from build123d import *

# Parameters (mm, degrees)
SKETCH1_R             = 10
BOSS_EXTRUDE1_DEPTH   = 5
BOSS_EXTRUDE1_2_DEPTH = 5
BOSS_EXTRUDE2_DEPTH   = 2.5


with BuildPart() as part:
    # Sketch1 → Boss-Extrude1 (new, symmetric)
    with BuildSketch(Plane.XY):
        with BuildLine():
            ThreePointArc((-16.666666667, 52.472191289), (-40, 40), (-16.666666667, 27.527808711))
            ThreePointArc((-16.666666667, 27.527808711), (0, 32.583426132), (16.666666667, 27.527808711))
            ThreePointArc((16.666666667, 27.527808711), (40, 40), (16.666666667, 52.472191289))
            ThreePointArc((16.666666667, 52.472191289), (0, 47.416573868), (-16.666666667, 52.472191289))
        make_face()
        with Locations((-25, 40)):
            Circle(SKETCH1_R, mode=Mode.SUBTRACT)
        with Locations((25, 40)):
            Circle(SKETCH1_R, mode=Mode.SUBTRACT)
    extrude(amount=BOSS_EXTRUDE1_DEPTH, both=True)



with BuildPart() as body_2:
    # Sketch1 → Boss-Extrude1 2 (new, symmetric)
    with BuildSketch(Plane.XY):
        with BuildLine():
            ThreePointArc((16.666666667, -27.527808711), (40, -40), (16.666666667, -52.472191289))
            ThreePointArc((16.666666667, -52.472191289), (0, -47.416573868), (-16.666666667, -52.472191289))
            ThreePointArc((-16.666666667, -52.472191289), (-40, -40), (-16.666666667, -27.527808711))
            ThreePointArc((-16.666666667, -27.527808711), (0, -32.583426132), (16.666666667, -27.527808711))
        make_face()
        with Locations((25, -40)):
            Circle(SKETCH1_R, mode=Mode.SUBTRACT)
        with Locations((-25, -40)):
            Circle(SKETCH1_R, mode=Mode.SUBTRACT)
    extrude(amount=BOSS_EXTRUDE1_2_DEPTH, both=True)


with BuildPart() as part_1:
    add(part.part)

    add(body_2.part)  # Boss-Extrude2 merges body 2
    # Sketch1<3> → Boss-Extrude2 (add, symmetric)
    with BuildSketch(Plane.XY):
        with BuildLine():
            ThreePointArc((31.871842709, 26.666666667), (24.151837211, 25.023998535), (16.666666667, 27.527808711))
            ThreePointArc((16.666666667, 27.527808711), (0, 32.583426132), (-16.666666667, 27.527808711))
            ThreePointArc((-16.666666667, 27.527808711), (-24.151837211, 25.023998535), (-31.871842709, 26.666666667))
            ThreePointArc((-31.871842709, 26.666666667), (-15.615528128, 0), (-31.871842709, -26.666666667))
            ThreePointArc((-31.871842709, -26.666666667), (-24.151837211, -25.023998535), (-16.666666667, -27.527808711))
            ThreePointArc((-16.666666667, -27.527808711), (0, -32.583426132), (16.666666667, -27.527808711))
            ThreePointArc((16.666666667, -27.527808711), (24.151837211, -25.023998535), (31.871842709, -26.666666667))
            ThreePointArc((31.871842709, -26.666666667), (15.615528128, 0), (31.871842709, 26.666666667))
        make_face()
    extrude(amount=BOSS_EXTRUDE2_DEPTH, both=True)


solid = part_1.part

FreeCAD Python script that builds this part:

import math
import FreeCAD as App
import Part
import Sketcher
from FreeCAD import Vector

doc = App.newDocument("Part")
body = doc.addObject("PartDesign::Body", "Body")

# Sketch on XY plane
sketch1 = body.newObject("Sketcher::SketchObject", "Sketch")
sketch1.AttachmentSupport = (doc.getObject("XY_Plane"), [""])
sketch1.MapMode = "FlatFace"
sketch1.addGeometry(Part.ArcOfCircle(Part.Circle(Vector(-25, 40, 0), Vector(0, 0, 1), 15), math.radians(56), math.radians(304)), False)
sketch1.addGeometry(Part.ArcOfCircle(Part.Circle(Vector(0, 3, 0), Vector(0, 0, 1), 30), math.radians(56), math.radians(124)), False)
sketch1.addGeometry(Part.ArcOfCircle(Part.Circle(Vector(25, 40, 0), Vector(0, 0, 1), 15), math.radians(-124), math.radians(124)), False)
sketch1.addGeometry(Part.ArcOfCircle(Part.Circle(Vector(0, 77, 0), Vector(0, 0, 1), 30), math.radians(-124), math.radians(-56)), False)
sketch1.addGeometry(Part.Circle(Vector(-25, 40, 0), Vector(0, 0, 1), 10), False)
sketch1.addGeometry(Part.Circle(Vector(25, 40, 0), Vector(0, 0, 1), 10), False)
sketch1.addConstraint(Sketcher.Constraint("Tangent", 0, 2, 1, 2))
sketch1.addConstraint(Sketcher.Constraint("Tangent", 1, 1, 2, 1))
sketch1.addConstraint(Sketcher.Constraint("Tangent", 2, 2, 3, 2))
sketch1.addConstraint(Sketcher.Constraint("Tangent", 3, 1, 0, 1))
sketch1.addConstraint(Sketcher.Constraint("Coincident", 4, 3, 0, 3))
sketch1.addConstraint(Sketcher.Constraint("Coincident", 5, 3, 2, 3))
sketch1.addConstraint(Sketcher.Constraint("Equal", 0, 2))
sketch1.addConstraint(Sketcher.Constraint("Equal", 1, 3))
sketch1.addConstraint(Sketcher.Constraint("Equal", 4, 5))
sketch1.addConstraint(Sketcher.Constraint("Symmetric", 0, 3, 2, 3, -2))
sketch1.addConstraint(Sketcher.Constraint("Diameter", 4, 20.0))
sketch1.addConstraint(Sketcher.Constraint("Radius", 0, 15.0))
sketch1.addConstraint(Sketcher.Constraint("Radius", 1, 30.0))
sketch1.addConstraint(Sketcher.Constraint("DistanceX", 0, 3, -1, 1, 25.0))
sketch1.addConstraint(Sketcher.Constraint("DistanceY", -1, 1, 0, 3, 40.0))
pad1 = body.newObject("PartDesign::Pad", "Pad")
pad1.Profile = sketch1
pad1.Length = 10
pad1.Midplane = True
body2 = doc.addObject("PartDesign::Body", "Body001")

# Sketch on XY plane
sketch2 = body2.newObject("Sketcher::SketchObject", "Sketch001")
sketch2.AttachmentSupport = (doc.getObject("XY_Plane001"), [""])
sketch2.MapMode = "FlatFace"
sketch2.addGeometry(Part.ArcOfCircle(Part.Circle(Vector(25, -40, 0), Vector(0, 0, 1), 15), math.radians(-124), math.radians(124)), False)
sketch2.addGeometry(Part.ArcOfCircle(Part.Circle(Vector(0, -3, 0), Vector(0, 0, 1), 30), math.radians(-124), math.radians(-56)), False)
sketch2.addGeometry(Part.ArcOfCircle(Part.Circle(Vector(-25, -40, 0), Vector(0, 0, 1), 15), math.radians(56), math.radians(304)), False)
sketch2.addGeometry(Part.ArcOfCircle(Part.Circle(Vector(0, -77, 0), Vector(0, 0, 1), 30), math.radians(56), math.radians(124)), False)
sketch2.addGeometry(Part.Circle(Vector(25, -40, 0), Vector(0, 0, 1), 10), False)
sketch2.addGeometry(Part.Circle(Vector(-25, -40, 0), Vector(0, 0, 1), 10), False)
sketch2.addConstraint(Sketcher.Constraint("Tangent", 0, 2, 1, 2))
sketch2.addConstraint(Sketcher.Constraint("Tangent", 1, 1, 2, 1))
sketch2.addConstraint(Sketcher.Constraint("Tangent", 2, 2, 3, 2))
sketch2.addConstraint(Sketcher.Constraint("Tangent", 3, 1, 0, 1))
sketch2.addConstraint(Sketcher.Constraint("Coincident", 4, 3, 0, 3))
sketch2.addConstraint(Sketcher.Constraint("Coincident", 5, 3, 2, 3))
sketch2.addConstraint(Sketcher.Constraint("Equal", 0, 2))
sketch2.addConstraint(Sketcher.Constraint("Equal", 1, 3))
sketch2.addConstraint(Sketcher.Constraint("Equal", 4, 5))
sketch2.addConstraint(Sketcher.Constraint("Symmetric", 0, 3, 2, 3, -2))
sketch2.addConstraint(Sketcher.Constraint("Diameter", 4, 20.0))
sketch2.addConstraint(Sketcher.Constraint("Radius", 0, 15.0))
sketch2.addConstraint(Sketcher.Constraint("Radius", 1, 30.0))
sketch2.addConstraint(Sketcher.Constraint("DistanceX", -1, 1, 0, 3, 25.0))
sketch2.addConstraint(Sketcher.Constraint("DistanceY", 0, 3, -1, 1, 40.0))
pad2 = body2.newObject("PartDesign::Pad", "Pad001")
pad2.Profile = sketch2
pad2.Length = 10
pad2.Midplane = True
body.AllowCompound = True
doc.recompute()

boolean = body.newObject("PartDesign::Boolean", "Boolean")
boolean.Type = "Fuse"
boolean.addObjects([body2])

# Sketch on XY plane
sketch3 = body.newObject("Sketcher::SketchObject", "Sketch002")
sketch3.AttachmentSupport = (doc.getObject("XY_Plane"), [""])
sketch3.MapMode = "FlatFace"
sketch3.addGeometry(Part.ArcOfCircle(Part.Circle(Vector(25, 40, 0), Vector(0, 0, 1), 15), math.radians(-124), math.radians(-63)), False)
sketch3.addGeometry(Part.ArcOfCircle(Part.Circle(Vector(0, 3, 0), Vector(0, 0, 1), 30), math.radians(56), math.radians(124)), False)
sketch3.addGeometry(Part.ArcOfCircle(Part.Circle(Vector(-25, 40, 0), Vector(0, 0, 1), 15), math.radians(-117), math.radians(-56)), False)
sketch3.addGeometry(Part.ArcOfCircle(Part.Circle(Vector(-46, 0, 0), Vector(0, 0, 1), 30), math.radians(-63), math.radians(63)), False)
sketch3.addGeometry(Part.ArcOfCircle(Part.Circle(Vector(-25, -40, 0), Vector(0, 0, 1), 15), math.radians(56), math.radians(117)), False)
sketch3.addGeometry(Part.ArcOfCircle(Part.Circle(Vector(0, -3, 0), Vector(0, 0, 1), 30), math.radians(-124), math.radians(-56)), False)
sketch3.addGeometry(Part.ArcOfCircle(Part.Circle(Vector(25, -40, 0), Vector(0, 0, 1), 15), math.radians(63), math.radians(124)), False)
sketch3.addGeometry(Part.ArcOfCircle(Part.Circle(Vector(46, 0, 0), Vector(0, 0, 1), 30), math.radians(117), math.radians(243)), False)
sketch3.addConstraint(Sketcher.Constraint("Tangent", 0, 1, 1, 1))
sketch3.addConstraint(Sketcher.Constraint("Tangent", 1, 2, 2, 2))
sketch3.addConstraint(Sketcher.Constraint("Tangent", 2, 1, 3, 2))
sketch3.addConstraint(Sketcher.Constraint("Tangent", 3, 1, 4, 2))
sketch3.addConstraint(Sketcher.Constraint("Tangent", 4, 1, 5, 1))
sketch3.addConstraint(Sketcher.Constraint("Tangent", 5, 2, 6, 2))
sketch3.addConstraint(Sketcher.Constraint("Tangent", 6, 1, 7, 2))
sketch3.addConstraint(Sketcher.Constraint("Tangent", 7, 1, 0, 2))
sketch3.addConstraint(Sketcher.Constraint("Equal", 0, 2))
sketch3.addConstraint(Sketcher.Constraint("Equal", 1, 3))
sketch3.addConstraint(Sketcher.Constraint("Equal", 2, 4))
sketch3.addConstraint(Sketcher.Constraint("Equal", 3, 5))
sketch3.addConstraint(Sketcher.Constraint("Equal", 4, 6))
sketch3.addConstraint(Sketcher.Constraint("Equal", 5, 7))
sketch3.addConstraint(Sketcher.Constraint("Symmetric", 0, 3, 4, 3, -1, 1))
sketch3.addConstraint(Sketcher.Constraint("Symmetric", 2, 3, 6, 3, -1, 1))
sketch3.addConstraint(Sketcher.Constraint("Symmetric", 0, 3, 2, 3, -2))
sketch3.addConstraint(Sketcher.Constraint("Radius", 0, 15.0))
sketch3.addConstraint(Sketcher.Constraint("Radius", 1, 30.0))
sketch3.addConstraint(Sketcher.Constraint("DistanceX", -1, 1, 0, 3, 25.0))
sketch3.addConstraint(Sketcher.Constraint("DistanceY", -1, 1, 0, 3, 40.0))
pad3 = body.newObject("PartDesign::Pad", "Pad002")
pad3.Profile = sketch3
pad3.Length = 5
pad3.Midplane = True

doc.recompute()
